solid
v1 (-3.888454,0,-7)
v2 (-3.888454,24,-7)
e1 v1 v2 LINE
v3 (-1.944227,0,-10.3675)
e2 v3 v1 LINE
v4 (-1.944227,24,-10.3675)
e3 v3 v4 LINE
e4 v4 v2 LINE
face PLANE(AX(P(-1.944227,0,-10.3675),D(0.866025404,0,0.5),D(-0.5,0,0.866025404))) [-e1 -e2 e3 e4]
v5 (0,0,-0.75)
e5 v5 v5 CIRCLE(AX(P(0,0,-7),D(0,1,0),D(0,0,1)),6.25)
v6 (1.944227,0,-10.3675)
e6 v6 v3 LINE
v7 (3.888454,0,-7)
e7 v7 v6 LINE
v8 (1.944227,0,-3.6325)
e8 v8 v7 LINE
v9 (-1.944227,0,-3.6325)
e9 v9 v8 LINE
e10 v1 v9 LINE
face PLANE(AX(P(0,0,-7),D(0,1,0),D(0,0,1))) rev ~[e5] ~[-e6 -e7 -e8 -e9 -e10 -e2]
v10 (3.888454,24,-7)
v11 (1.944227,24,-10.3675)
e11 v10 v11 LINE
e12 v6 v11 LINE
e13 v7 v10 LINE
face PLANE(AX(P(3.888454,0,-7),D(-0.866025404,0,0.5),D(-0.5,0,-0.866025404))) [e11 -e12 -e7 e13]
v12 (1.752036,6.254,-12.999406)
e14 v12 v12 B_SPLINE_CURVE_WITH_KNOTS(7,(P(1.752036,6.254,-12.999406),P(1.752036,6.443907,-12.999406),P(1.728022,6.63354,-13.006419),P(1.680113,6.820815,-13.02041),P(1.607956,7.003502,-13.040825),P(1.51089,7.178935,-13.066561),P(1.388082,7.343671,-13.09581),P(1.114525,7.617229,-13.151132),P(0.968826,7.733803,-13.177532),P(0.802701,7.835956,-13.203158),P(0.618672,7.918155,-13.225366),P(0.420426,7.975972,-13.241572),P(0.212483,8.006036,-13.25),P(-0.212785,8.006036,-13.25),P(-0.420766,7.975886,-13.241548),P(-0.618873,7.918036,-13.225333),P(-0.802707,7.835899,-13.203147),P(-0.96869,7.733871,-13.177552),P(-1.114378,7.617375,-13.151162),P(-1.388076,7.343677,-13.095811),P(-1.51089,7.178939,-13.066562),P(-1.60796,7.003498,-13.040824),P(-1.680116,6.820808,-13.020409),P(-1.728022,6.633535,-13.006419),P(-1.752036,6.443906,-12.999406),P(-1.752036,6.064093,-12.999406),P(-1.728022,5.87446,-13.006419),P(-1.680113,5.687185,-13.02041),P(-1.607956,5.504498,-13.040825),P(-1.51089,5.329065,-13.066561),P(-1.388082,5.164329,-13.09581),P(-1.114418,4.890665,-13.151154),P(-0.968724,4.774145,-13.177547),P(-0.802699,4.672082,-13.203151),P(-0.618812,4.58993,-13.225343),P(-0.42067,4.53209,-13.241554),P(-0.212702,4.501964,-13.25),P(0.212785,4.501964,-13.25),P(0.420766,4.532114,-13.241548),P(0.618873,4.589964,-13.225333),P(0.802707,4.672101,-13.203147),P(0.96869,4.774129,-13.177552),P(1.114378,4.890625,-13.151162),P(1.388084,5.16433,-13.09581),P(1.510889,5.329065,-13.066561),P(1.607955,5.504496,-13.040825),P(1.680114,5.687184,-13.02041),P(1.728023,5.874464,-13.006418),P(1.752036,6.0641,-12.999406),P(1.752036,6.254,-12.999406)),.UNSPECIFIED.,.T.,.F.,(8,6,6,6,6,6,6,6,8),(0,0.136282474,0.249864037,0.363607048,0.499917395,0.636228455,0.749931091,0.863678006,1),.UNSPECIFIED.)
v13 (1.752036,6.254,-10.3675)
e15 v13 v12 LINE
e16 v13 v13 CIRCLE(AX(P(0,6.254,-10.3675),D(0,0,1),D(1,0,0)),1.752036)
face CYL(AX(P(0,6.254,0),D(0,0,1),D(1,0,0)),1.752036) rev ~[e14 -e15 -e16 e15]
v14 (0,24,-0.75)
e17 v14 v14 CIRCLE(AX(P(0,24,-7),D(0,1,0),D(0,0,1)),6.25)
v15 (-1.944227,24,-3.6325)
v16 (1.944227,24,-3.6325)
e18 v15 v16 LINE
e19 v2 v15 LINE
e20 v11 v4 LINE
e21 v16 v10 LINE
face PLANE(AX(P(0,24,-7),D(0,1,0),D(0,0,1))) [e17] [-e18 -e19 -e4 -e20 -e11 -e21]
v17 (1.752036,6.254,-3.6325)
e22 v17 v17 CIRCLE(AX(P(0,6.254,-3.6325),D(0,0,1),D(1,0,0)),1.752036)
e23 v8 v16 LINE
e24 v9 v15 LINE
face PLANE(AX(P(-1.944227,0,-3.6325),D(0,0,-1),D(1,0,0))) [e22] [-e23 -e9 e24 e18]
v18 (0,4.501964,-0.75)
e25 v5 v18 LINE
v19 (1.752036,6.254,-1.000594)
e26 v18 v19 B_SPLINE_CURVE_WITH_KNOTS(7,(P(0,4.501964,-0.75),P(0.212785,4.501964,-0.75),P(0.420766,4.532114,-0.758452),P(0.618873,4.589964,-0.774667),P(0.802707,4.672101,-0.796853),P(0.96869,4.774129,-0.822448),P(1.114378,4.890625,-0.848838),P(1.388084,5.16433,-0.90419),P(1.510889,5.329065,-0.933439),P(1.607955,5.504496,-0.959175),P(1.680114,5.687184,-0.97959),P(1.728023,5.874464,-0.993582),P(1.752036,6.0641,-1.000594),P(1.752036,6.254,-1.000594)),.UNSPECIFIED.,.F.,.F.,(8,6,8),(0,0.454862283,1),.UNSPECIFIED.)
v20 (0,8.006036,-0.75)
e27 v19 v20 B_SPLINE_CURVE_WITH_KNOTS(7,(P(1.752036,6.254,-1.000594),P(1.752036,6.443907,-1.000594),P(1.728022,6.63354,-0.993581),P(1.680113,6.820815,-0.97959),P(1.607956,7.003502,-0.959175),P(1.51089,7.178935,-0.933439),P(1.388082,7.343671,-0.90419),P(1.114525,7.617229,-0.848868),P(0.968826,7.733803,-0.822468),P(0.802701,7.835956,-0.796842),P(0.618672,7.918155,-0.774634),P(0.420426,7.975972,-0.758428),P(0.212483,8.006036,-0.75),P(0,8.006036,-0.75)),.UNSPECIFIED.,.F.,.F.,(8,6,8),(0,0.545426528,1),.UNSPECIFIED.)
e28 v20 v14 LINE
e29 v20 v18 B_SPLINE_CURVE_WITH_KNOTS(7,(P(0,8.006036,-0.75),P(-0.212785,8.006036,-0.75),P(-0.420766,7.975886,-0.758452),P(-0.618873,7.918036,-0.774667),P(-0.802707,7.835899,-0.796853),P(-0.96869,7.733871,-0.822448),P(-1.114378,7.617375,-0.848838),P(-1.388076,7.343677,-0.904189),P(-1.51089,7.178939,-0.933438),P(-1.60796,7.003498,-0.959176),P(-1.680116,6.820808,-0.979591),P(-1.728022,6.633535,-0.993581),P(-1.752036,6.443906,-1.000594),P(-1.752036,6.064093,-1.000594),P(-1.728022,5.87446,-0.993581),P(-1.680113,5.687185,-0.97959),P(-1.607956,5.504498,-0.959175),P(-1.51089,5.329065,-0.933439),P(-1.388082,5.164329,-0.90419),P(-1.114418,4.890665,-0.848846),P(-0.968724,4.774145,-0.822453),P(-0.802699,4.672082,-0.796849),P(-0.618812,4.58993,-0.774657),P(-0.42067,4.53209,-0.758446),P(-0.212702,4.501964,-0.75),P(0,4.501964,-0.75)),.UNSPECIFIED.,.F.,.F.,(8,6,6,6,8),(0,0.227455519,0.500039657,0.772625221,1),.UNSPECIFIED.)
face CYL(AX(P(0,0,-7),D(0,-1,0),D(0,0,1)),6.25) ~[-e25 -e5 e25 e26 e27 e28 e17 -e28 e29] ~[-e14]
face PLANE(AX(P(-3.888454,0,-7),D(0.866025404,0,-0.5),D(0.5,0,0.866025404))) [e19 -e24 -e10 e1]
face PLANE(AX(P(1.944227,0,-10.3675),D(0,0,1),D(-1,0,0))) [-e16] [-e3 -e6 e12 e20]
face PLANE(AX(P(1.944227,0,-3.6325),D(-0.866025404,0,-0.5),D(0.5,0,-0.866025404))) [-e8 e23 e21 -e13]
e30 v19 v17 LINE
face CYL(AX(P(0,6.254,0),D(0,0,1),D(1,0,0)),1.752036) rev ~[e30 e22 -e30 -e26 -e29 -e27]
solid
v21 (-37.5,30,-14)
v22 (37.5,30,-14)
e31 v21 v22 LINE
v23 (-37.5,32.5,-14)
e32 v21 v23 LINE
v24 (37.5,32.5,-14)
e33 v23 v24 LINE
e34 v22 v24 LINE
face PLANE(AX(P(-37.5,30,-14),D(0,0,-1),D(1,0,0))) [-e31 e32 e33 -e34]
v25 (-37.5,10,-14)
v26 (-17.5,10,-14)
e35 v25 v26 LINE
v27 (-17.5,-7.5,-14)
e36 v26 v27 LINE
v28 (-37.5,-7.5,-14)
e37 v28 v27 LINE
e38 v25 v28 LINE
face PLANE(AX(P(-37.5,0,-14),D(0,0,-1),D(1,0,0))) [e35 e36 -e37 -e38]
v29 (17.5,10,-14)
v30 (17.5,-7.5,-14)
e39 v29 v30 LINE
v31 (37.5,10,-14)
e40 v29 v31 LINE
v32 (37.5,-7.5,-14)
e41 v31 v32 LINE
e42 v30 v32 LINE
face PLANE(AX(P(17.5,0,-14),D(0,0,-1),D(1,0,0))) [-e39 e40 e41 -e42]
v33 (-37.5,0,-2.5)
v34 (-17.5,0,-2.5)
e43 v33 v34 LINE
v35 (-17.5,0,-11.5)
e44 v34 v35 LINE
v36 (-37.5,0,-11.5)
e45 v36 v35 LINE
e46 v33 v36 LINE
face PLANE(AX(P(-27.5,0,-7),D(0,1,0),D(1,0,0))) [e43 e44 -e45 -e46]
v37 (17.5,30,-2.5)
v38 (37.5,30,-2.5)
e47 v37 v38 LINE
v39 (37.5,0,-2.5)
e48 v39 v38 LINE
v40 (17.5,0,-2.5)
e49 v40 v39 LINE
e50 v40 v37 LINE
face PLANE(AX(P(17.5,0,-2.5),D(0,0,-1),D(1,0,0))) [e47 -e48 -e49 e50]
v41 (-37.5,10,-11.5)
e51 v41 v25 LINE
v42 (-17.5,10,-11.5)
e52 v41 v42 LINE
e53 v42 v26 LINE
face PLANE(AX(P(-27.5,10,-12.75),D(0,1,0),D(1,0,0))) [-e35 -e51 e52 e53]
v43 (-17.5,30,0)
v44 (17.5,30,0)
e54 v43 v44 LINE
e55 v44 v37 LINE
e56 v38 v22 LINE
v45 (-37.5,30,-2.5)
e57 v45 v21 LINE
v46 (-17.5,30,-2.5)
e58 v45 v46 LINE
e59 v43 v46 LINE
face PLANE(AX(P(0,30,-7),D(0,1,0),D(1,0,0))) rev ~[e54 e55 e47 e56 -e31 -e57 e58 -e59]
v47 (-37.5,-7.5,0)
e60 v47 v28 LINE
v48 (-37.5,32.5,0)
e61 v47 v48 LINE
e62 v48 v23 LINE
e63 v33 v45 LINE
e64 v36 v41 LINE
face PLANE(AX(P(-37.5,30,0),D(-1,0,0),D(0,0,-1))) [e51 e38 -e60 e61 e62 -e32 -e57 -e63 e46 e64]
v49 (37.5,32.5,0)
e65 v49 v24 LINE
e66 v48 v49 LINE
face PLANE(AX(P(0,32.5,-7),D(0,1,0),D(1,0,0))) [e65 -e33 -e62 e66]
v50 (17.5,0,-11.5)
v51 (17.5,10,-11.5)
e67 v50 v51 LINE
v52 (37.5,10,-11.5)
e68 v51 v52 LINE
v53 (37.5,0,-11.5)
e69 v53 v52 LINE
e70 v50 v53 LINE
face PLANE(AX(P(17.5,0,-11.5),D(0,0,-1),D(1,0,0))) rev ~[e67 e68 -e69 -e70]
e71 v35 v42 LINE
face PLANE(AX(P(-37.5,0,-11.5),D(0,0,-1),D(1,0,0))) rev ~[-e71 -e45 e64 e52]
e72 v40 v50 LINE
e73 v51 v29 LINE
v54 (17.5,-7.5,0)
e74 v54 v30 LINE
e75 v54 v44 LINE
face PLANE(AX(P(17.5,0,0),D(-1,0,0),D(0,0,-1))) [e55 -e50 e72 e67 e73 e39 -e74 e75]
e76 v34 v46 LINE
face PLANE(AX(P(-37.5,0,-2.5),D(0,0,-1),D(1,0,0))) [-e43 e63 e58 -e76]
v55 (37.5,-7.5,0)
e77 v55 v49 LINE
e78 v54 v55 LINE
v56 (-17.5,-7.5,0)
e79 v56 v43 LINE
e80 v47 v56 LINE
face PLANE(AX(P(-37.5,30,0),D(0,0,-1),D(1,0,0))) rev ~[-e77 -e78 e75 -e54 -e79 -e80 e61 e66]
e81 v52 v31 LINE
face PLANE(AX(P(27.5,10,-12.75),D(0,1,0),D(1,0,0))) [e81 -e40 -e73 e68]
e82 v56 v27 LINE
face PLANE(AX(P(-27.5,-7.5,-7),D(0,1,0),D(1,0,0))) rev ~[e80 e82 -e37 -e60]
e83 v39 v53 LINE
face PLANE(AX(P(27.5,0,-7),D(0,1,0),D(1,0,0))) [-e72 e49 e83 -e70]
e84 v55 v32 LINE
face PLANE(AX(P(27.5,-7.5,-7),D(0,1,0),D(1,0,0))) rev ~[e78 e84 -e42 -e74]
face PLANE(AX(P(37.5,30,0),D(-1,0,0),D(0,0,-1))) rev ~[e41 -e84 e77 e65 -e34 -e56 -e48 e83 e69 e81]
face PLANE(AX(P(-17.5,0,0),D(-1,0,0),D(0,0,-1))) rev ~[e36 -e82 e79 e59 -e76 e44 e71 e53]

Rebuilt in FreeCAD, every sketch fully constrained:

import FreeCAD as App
import Part
import Sketcher
Q = App.Units.Quantity


def add_polygon(sketch, points):
    """Adds a closed chain of lines whose ends are joined by coincident constraints."""
    first, n = sketch.GeometryCount, len(points)
    for a, b in zip(points, points[1:] + points[:1]):
        sketch.addGeometry(Part.LineSegment(App.Vector(*a, 0), App.Vector(*b, 0)), False)
    for i in range(n):
        sketch.addConstraint(Sketcher.Constraint("Coincident", first + i, 2, first + (i + 1) % n, 1))

doc = App.newDocument("Part")
params = doc.addObject("Spreadsheet::Sheet", "Params")
for row, (alias, value) in enumerate([
    ("sketch1_width", "20 mm"),
    ("sketch1_height", "14 mm"),
    ("pad1_length", "7.5 mm"),
    ("sketch2_width", "20 mm"),
    ("sketch2_height", "2.5 mm"),
    ("pad2_length", "10 mm"),
    ("sketch3_width", "20 mm"),
    ("sketch3_height", "2.5 mm"),
    ("pad3_length", "30 mm"),
    ("sketch4_width", "20 mm"),
    ("sketch4_height", "14 mm"),
    ("pad4_length", "7.5 mm"),
    ("sketch5_width", "20 mm"),
    ("sketch5_height", "2.5 mm"),
    ("pad5_length", "10 mm"),
    ("sketch6_width", "20 mm"),
    ("sketch6_height", "2.5 mm"),
    ("pad6_length", "30 mm"),
    ("sketch7_width", "75 mm"),
    ("sketch7_height", "14 mm"),
    ("pad7_length", "2.5 mm"),
    ("sketch8_diameter", "12.5 mm"),
    ("pad8_length", "24 mm"),
], start=1):
    params.set(f"A{row}", alias)
    params.set(f"B{row}", "=" + value)
    params.setAlias(f"B{row}", alias)

body = doc.addObject("PartDesign::Body", "Body")

# Sketch on XZ plane
sketch1 = doc.addObject("Sketcher::SketchObject", "Sketch")
body.addObject(sketch1)
sketch1.AttachmentSupport = (doc.XZ_Plane, [""])
sketch1.MapMode = "FlatFace"
add_polygon(sketch1, [(-37.5, -14), (-37.5, 0), (-17.5, 0), (-17.5, -14)])  # lines 0-3
sketch1.addConstraint([
    Sketcher.Constraint("Vertical", 0),
    Sketcher.Constraint("Horizontal", 1),
    Sketcher.Constraint("Vertical", 2),
    Sketcher.Constraint("Horizontal", 3),
    Sketcher.Constraint("PointOnObject", 0, 2, -1),
    Sketcher.Constraint("DistanceX", 1, 1, 1, 2, Q("20 mm")),
    Sketcher.Constraint("DistanceY", 0, 1, 0, 2, Q("14 mm")),
    Sketcher.Constraint("DistanceX", 0, 2, -1, 1, Q("37.5 mm")),
])
sketch1.setExpression("Constraints[9]", "Params.sketch1_width")
sketch1.setExpression("Constraints[10]", "Params.sketch1_height")
pad1 = doc.addObject("PartDesign::Pad", "Pad")
body.addObject(pad1)
pad1.Profile = sketch1
pad1.setExpression("Length", "Params.pad1_length")

# Sketch on XZ plane
sketch2 = doc.addObject("Sketcher::SketchObject", "Sketch001")
body.addObject(sketch2)
sketch2.AttachmentSupport = (doc.XZ_Plane, [""])
sketch2.MapMode = "FlatFace"
add_polygon(sketch2, [(-37.5, -14), (-37.5, -11.5), (-17.5, -11.5), (-17.5, -14)])  # lines 0-3
sketch2.addConstraint([
    Sketcher.Constraint("Vertical", 0),
    Sketcher.Constraint("Horizontal", 1),
    Sketcher.Constraint("Vertical", 2),
    Sketcher.Constraint("Horizontal", 3),
    Sketcher.Constraint("DistanceX", 1, 1, 1, 2, Q("20 mm")),
    Sketcher.Constraint("DistanceY", 0, 1, 0, 2, Q("2.5 mm")),
    Sketcher.Constraint("DistanceY", 2, 2, -1, 1, Q("14 mm")),
    Sketcher.Constraint("DistanceX", 0, 2, -1, 1, Q("37.5 mm")),
])
sketch2.setExpression("Constraints[8]", "Params.sketch2_width")
sketch2.setExpression("Constraints[9]", "Params.sketch2_height")
pad2 = doc.addObject("PartDesign::Pad", "Pad001")
body.addObject(pad2)
pad2.Profile = sketch2
pad2.setExpression("Length", "Params.pad2_length")
pad2.Reversed = True

# Sketch on XZ plane
sketch3 = doc.addObject("Sketcher::SketchObject", "Sketch002")
body.addObject(sketch3)
sketch3.AttachmentSupport = (doc.XZ_Plane, [""])
sketch3.MapMode = "FlatFace"
add_polygon(sketch3, [(-37.5, -2.5), (-37.5, 0), (-17.5, 0), (-17.5, -2.5)])  # lines 0-3
sketch3.addConstraint([
    Sketcher.Constraint("Vertical", 0),
    Sketcher.Constraint("Horizontal", 1),
    Sketcher.Constraint("Vertical", 2),
    Sketcher.Constraint("Horizontal", 3),
    Sketcher.Constraint("PointOnObject", 0, 2, -1),
    Sketcher.Constraint("DistanceX", 1, 1, 1, 2, Q("20 mm")),
    Sketcher.Constraint("DistanceY", 0, 1, 0, 2, Q("2.5 mm")),
    Sketcher.Constraint("DistanceX", 0, 2, -1, 1, Q("37.5 mm")),
])
sketch3.setExpression("Constraints[9]", "Params.sketch3_width")
sketch3.setExpression("Constraints[10]", "Params.sketch3_height")
pad3 = doc.addObject("PartDesign::Pad", "Pad002")
body.addObject(pad3)
pad3.Profile = sketch3
pad3.setExpression("Length", "Params.pad3_length")
pad3.Reversed = True
body2 = doc.addObject("PartDesign::Body", "Body001")

# Sketch on XZ plane
sketch4 = doc.addObject("Sketcher::SketchObject", "Sketch003")
body2.addObject(sketch4)
sketch4.AttachmentSupport = (doc.getObject("XZ_Plane001"), [""])
sketch4.MapMode = "FlatFace"
add_polygon(sketch4, [(17.5, -14), (17.5, 0), (37.5, 0), (37.5, -14)])  # lines 0-3
sketch4.addConstraint([
    Sketcher.Constraint("Vertical", 0),
    Sketcher.Constraint("Horizontal", 1),
    Sketcher.Constraint("Vertical", 2),
    Sketcher.Constraint("Horizontal", 3),
    Sketcher.Constraint("PointOnObject", 0, 2, -1),
    Sketcher.Constraint("DistanceX", 1, 1, 1, 2, Q("20 mm")),
    Sketcher.Constraint("DistanceY", 0, 1, 0, 2, Q("14 mm")),
    Sketcher.Constraint("DistanceX", -1, 1, 0, 2, Q("17.5 mm")),
])
sketch4.setExpression("Constraints[9]", "Params.sketch4_width")
sketch4.setExpression("Constraints[10]", "Params.sketch4_height")
pad4 = doc.addObject("PartDesign::Pad", "Pad003")
body2.addObject(pad4)
pad4.Profile = sketch4
pad4.setExpression("Length", "Params.pad4_length")

# Sketch on XZ plane
sketch5 = doc.addObject("Sketcher::SketchObject", "Sketch004")
body2.addObject(sketch5)
sketch5.AttachmentSupport = (doc.getObject("XZ_Plane001"), [""])
sketch5.MapMode = "FlatFace"
add_polygon(sketch5, [(17.5, -14), (17.5, -11.5), (37.5, -11.5), (37.5, -14)])  # lines 0-3
sketch5.addConstraint([
    Sketcher.Constraint("Vertical", 0),
    Sketcher.Constraint("Horizontal", 1),
    Sketcher.Constraint("Vertical", 2),
    Sketcher.Constraint("Horizontal", 3),
    Sketcher.Constraint("DistanceX", 1, 1, 1, 2, Q("20 mm")),
    Sketcher.Constraint("DistanceY", 0, 1, 0, 2, Q("2.5 mm")),
    Sketcher.Constraint("DistanceY", 2, 2, -1, 1, Q("14 mm")),
    Sketcher.Constraint("DistanceX", -1, 1, 0, 2, Q("17.5 mm")),
])
sketch5.setExpression("Constraints[8]", "Params.sketch5_width")
sketch5.setExpression("Constraints[9]", "Params.sketch5_height")
pad5 = doc.addObject("PartDesign::Pad", "Pad004")
body2.addObject(pad5)
pad5.Profile = sketch5
pad5.setExpression("Length", "Params.pad5_length")
pad5.Reversed = True

# Sketch on XZ plane
sketch6 = doc.addObject("Sketcher::SketchObject", "Sketch005")
body2.addObject(sketch6)
sketch6.AttachmentSupport = (doc.getObject("XZ_Plane001"), [""])
sketch6.MapMode = "FlatFace"
add_polygon(sketch6, [(17.5, -2.5), (17.5, 0), (37.5, 0), (37.5, -2.5)])  # lines 0-3
sketch6.addConstraint([
    Sketcher.Constraint("Vertical", 0),
    Sketcher.Constraint("Horizontal", 1),
    Sketcher.Constraint("Vertical", 2),
    Sketcher.Constraint("Horizontal", 3),
    Sketcher.Constraint("PointOnObject", 0, 2, -1),
    Sketcher.Constraint("DistanceX", 1, 1, 1, 2, Q("20 mm")),
    Sketcher.Constraint("DistanceY", 0, 1, 0, 2, Q("2.5 mm")),
    Sketcher.Constraint("DistanceX", -1, 1, 0, 2, Q("17.5 mm")),
])
sketch6.setExpression("Constraints[9]", "Params.sketch6_width")
sketch6.setExpression("Constraints[10]", "Params.sketch6_height")
pad6 = doc.addObject("PartDesign::Pad", "Pad005")
body2.addObject(pad6)
pad6.Profile = sketch6
pad6.setExpression("Length", "Params.pad6_length")
pad6.Reversed = True
body.AllowCompound = True
doc.recompute()

boolean = doc.addObject("PartDesign::Boolean", "Boolean")
body.addObject(boolean)
boolean.Type = "Fuse"
boolean.addObjects([body2])

# Sketch on XZ plane
sketch7 = doc.addObject("Sketcher::SketchObject", "Sketch006")
body.addObject(sketch7)
sketch7.AttachmentSupport = (doc.XZ_Plane, [""])
sketch7.MapMode = "FlatFace"
sketch7.AttachmentOffset = App.Placement(App.Vector(0, 0, -30), App.Rotation())
add_polygon(sketch7, [(-37.5, -14), (-37.5, 0), (37.5, 0), (37.5, -14)])  # lines 0-3
sketch7.addConstraint([
    Sketcher.Constraint("Vertical", 0),
    Sketcher.Constraint("Horizontal", 1),
    Sketcher.Constraint("Vertical", 2),
    Sketcher.Constraint("Horizontal", 3),
    Sketcher.Constraint("Symmetric", 0, 2, 1, 2, -1, 1),
    Sketcher.Constraint("DistanceX", 1, 1, 1, 2, Q("75 mm")),
    Sketcher.Constraint("DistanceY", 0, 1, 0, 2, Q("14 mm")),
])
sketch7.setExpression("Constraints[9]", "Params.sketch7_width")
sketch7.setExpression("Constraints[10]", "Params.sketch7_height")
pad7 = doc.addObject("PartDesign::Pad", "Pad006")
body.addObject(pad7)
pad7.Profile = sketch7
pad7.setExpression("Length", "Params.pad7_length")
pad7.Reversed = True
body3 = doc.addObject("PartDesign::Body", "Body002")

# Sketch on XZ plane
sketch8 = doc.addObject("Sketcher::SketchObject", "Sketch007")
body3.addObject(sketch8)
sketch8.AttachmentSupport = (doc.getObject("XZ_Plane002"), [""])
sketch8.MapMode = "FlatFace"
sketch8.addGeometry(Part.Circle(App.Vector(0, -7, 0), App.Vector(0, 0, 1), 6.25), False)  # 0
add_polygon(sketch8, [(-3.888454, -7), (-1.944227, -10.3675), (1.944227, -10.3675), (3.888454, -7), (1.944227, -3.6325), (-1.944227, -3.6325)])  # lines 1-6
sketch8.addConstraint([
    Sketcher.Constraint("Horizontal", 2),
    Sketcher.Constraint("Horizontal", 5),
    Sketcher.Constraint("Symmetric", 3, 2, 6, 2, -2),
    Sketcher.Constraint("PointOnObject", 0, 3, -2),
    Sketcher.Constraint("Parallel", 1, 4),
    Sketcher.Constraint("Parallel", 3, 6),
    Sketcher.Constraint("Horizontal", 0, 3, 3, 2),
    Sketcher.Constraint("Vertical", 2, 2, 4, 2),
    Sketcher.Constraint("Vertical", 1, 2, 5, 2),
    Sketcher.Constraint("Diameter", 0, Q("12.5 mm")),
    Sketcher.Constraint("Angle", 1, Q("-60 deg")),
    Sketcher.Constraint("DistanceY", 0, 3, -1, 1, Q("7 mm")),
    Sketcher.Constraint("DistanceY", 2, 2, 4, 2, Q("6.735 mm")),
    Sketcher.Constraint("DistanceX", 2, 1, 2, 2, Q("3.888454 mm")),
])
sketch8.setExpression("Constraints[15]", "Params.sketch8_diameter")
pad8 = doc.addObject("PartDesign::Pad", "Pad007")
body3.addObject(pad8)
pad8.Profile = sketch8
pad8.setExpression("Length", "Params.pad8_length")
pad8.Reversed = True

# Sketch on XY plane
sketch9 = doc.addObject("Sketcher::SketchObject", "Sketch008")
body3.addObject(sketch9)
sketch9.AttachmentSupport = (doc.getObject("XY_Plane002"), [""])
sketch9.MapMode = "FlatFace"
sketch9.addGeometry(Part.Circle(App.Vector(0, 6.254, 0), App.Vector(0, 0, 1), 1.752036), False)
sketch9.addConstraint([
    Sketcher.Constraint("PointOnObject", 0, 3, -2),
    Sketcher.Constraint("Diameter", 0, Q("3.504072 mm")),
    Sketcher.Constraint("DistanceY", -1, 1, 0, 3, Q("6.254 mm")),
])
pocket1 = doc.addObject("PartDesign::Pocket", "Pocket")
body3.addObject(pocket1)
pocket1.Profile = sketch9
pocket1.Type = "ThroughAll"

doc.recompute()
